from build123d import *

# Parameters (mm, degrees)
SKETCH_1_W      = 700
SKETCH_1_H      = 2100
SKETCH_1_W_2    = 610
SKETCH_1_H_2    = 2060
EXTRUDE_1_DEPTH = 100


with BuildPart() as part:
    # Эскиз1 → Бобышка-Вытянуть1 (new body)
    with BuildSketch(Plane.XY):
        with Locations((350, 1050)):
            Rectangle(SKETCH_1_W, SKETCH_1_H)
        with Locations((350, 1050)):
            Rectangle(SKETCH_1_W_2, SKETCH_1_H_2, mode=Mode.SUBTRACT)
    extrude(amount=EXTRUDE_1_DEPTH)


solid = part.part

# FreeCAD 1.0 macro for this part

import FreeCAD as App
import Part
import Sketcher

doc = App.newDocument("Part")
body = doc.addObject("PartDesign::Body", "Body")

# Sketch on XY plane
sketch1 = body.newObject("Sketcher::SketchObject", "Sketch")
sketch1.AttachmentSupport = (doc.getObject("XY_Plane"), [""])
sketch1.MapMode = "FlatFace"
sketch1.addGeometry(Part.LineSegment(App.Vector(0, 2100, 0), App.Vector(0, 0, 0)), False)
sketch1.addGeometry(Part.LineSegment(App.Vector(0, 0, 0), App.Vector(700, 0, 0)), False)
sketch1.addGeometry(Part.LineSegment(App.Vector(700, 0, 0), App.Vector(700, 2100, 0)), False)
sketch1.addGeometry(Part.LineSegment(App.Vector(700, 2100, 0), App.Vector(0, 2100, 0)), False)
sketch1.addGeometry(Part.LineSegment(App.Vector(655, 20, 0), App.Vector(45, 20, 0)), False)
sketch1.addGeometry(Part.LineSegment(App.Vector(45, 20, 0), App.Vector(45, 2080, 0)), False)
sketch1.addGeometry(Part.LineSegment(App.Vector(45, 2080, 0), App.Vector(655, 2080, 0)), False)
sketch1.addGeometry(Part.LineSegment(App.Vector(655, 2080, 0), App.Vector(655, 20, 0)), False)
sketch1.addConstraint(Sketcher.Constraint("Coincident", 0, 2, 1, 1))
sketch1.addConstraint(Sketcher.Constraint("Coincident", 1, 2, 2, 1))
sketch1.addConstraint(Sketcher.Constraint("Coincident", 2, 2, 3, 1))
sketch1.addConstraint(Sketcher.Constraint("Coincident", 3, 2, 0, 1))
sketch1.addConstraint(Sketcher.Constraint("Coincident", 4, 2, 5, 1))
sketch1.addConstraint(Sketcher.Constraint("Coincident", 5, 2, 6, 1))
sketch1.addConstraint(Sketcher.Constraint("Coincident", 6, 2, 7, 1))
sketch1.addConstraint(Sketcher.Constraint("Coincident", 7, 2, 4, 1))
sketch1.addConstraint(Sketcher.Constraint("Vertical", 0))
sketch1.addConstraint(Sketcher.Constraint("Horizontal", 1))
sketch1.addConstraint(Sketcher.Constraint("Vertical", 2))
sketch1.addConstraint(Sketcher.Constraint("Horizontal", 3))
sketch1.addConstraint(Sketcher.Constraint("Horizontal", 4))
sketch1.addConstraint(Sketcher.Constraint("Vertical", 5))
sketch1.addConstraint(Sketcher.Constraint("Horizontal", 6))
sketch1.addConstraint(Sketcher.Constraint("Vertical", 7))
sketch1.addConstraint(Sketcher.Constraint("Coincident", 0, 2, -1, 1))
sketch1.addConstraint(Sketcher.Constraint("DistanceX", 1, 1, 1, 2, 700.0))
sketch1.addConstraint(Sketcher.Constraint("DistanceX", 4, 2, 4, 1, 610.0))
sketch1.addConstraint(Sketcher.Constraint("DistanceY", 0, 2, 0, 1, 2100.0))
sketch1.addConstraint(Sketcher.Constraint("DistanceY", 5, 1, 5, 2, 2060.0))
sketch1.addConstraint(Sketcher.Constraint("DistanceX", -1, 1, 4, 2, 45.0))
sketch1.addConstraint(Sketcher.Constraint("DistanceY", -1, 1, 4, 2, 20.0))
pad1 = body.newObject("PartDesign::Pad", "Pad")
pad1.Profile = sketch1
pad1.Length = 100

doc.recompute()
